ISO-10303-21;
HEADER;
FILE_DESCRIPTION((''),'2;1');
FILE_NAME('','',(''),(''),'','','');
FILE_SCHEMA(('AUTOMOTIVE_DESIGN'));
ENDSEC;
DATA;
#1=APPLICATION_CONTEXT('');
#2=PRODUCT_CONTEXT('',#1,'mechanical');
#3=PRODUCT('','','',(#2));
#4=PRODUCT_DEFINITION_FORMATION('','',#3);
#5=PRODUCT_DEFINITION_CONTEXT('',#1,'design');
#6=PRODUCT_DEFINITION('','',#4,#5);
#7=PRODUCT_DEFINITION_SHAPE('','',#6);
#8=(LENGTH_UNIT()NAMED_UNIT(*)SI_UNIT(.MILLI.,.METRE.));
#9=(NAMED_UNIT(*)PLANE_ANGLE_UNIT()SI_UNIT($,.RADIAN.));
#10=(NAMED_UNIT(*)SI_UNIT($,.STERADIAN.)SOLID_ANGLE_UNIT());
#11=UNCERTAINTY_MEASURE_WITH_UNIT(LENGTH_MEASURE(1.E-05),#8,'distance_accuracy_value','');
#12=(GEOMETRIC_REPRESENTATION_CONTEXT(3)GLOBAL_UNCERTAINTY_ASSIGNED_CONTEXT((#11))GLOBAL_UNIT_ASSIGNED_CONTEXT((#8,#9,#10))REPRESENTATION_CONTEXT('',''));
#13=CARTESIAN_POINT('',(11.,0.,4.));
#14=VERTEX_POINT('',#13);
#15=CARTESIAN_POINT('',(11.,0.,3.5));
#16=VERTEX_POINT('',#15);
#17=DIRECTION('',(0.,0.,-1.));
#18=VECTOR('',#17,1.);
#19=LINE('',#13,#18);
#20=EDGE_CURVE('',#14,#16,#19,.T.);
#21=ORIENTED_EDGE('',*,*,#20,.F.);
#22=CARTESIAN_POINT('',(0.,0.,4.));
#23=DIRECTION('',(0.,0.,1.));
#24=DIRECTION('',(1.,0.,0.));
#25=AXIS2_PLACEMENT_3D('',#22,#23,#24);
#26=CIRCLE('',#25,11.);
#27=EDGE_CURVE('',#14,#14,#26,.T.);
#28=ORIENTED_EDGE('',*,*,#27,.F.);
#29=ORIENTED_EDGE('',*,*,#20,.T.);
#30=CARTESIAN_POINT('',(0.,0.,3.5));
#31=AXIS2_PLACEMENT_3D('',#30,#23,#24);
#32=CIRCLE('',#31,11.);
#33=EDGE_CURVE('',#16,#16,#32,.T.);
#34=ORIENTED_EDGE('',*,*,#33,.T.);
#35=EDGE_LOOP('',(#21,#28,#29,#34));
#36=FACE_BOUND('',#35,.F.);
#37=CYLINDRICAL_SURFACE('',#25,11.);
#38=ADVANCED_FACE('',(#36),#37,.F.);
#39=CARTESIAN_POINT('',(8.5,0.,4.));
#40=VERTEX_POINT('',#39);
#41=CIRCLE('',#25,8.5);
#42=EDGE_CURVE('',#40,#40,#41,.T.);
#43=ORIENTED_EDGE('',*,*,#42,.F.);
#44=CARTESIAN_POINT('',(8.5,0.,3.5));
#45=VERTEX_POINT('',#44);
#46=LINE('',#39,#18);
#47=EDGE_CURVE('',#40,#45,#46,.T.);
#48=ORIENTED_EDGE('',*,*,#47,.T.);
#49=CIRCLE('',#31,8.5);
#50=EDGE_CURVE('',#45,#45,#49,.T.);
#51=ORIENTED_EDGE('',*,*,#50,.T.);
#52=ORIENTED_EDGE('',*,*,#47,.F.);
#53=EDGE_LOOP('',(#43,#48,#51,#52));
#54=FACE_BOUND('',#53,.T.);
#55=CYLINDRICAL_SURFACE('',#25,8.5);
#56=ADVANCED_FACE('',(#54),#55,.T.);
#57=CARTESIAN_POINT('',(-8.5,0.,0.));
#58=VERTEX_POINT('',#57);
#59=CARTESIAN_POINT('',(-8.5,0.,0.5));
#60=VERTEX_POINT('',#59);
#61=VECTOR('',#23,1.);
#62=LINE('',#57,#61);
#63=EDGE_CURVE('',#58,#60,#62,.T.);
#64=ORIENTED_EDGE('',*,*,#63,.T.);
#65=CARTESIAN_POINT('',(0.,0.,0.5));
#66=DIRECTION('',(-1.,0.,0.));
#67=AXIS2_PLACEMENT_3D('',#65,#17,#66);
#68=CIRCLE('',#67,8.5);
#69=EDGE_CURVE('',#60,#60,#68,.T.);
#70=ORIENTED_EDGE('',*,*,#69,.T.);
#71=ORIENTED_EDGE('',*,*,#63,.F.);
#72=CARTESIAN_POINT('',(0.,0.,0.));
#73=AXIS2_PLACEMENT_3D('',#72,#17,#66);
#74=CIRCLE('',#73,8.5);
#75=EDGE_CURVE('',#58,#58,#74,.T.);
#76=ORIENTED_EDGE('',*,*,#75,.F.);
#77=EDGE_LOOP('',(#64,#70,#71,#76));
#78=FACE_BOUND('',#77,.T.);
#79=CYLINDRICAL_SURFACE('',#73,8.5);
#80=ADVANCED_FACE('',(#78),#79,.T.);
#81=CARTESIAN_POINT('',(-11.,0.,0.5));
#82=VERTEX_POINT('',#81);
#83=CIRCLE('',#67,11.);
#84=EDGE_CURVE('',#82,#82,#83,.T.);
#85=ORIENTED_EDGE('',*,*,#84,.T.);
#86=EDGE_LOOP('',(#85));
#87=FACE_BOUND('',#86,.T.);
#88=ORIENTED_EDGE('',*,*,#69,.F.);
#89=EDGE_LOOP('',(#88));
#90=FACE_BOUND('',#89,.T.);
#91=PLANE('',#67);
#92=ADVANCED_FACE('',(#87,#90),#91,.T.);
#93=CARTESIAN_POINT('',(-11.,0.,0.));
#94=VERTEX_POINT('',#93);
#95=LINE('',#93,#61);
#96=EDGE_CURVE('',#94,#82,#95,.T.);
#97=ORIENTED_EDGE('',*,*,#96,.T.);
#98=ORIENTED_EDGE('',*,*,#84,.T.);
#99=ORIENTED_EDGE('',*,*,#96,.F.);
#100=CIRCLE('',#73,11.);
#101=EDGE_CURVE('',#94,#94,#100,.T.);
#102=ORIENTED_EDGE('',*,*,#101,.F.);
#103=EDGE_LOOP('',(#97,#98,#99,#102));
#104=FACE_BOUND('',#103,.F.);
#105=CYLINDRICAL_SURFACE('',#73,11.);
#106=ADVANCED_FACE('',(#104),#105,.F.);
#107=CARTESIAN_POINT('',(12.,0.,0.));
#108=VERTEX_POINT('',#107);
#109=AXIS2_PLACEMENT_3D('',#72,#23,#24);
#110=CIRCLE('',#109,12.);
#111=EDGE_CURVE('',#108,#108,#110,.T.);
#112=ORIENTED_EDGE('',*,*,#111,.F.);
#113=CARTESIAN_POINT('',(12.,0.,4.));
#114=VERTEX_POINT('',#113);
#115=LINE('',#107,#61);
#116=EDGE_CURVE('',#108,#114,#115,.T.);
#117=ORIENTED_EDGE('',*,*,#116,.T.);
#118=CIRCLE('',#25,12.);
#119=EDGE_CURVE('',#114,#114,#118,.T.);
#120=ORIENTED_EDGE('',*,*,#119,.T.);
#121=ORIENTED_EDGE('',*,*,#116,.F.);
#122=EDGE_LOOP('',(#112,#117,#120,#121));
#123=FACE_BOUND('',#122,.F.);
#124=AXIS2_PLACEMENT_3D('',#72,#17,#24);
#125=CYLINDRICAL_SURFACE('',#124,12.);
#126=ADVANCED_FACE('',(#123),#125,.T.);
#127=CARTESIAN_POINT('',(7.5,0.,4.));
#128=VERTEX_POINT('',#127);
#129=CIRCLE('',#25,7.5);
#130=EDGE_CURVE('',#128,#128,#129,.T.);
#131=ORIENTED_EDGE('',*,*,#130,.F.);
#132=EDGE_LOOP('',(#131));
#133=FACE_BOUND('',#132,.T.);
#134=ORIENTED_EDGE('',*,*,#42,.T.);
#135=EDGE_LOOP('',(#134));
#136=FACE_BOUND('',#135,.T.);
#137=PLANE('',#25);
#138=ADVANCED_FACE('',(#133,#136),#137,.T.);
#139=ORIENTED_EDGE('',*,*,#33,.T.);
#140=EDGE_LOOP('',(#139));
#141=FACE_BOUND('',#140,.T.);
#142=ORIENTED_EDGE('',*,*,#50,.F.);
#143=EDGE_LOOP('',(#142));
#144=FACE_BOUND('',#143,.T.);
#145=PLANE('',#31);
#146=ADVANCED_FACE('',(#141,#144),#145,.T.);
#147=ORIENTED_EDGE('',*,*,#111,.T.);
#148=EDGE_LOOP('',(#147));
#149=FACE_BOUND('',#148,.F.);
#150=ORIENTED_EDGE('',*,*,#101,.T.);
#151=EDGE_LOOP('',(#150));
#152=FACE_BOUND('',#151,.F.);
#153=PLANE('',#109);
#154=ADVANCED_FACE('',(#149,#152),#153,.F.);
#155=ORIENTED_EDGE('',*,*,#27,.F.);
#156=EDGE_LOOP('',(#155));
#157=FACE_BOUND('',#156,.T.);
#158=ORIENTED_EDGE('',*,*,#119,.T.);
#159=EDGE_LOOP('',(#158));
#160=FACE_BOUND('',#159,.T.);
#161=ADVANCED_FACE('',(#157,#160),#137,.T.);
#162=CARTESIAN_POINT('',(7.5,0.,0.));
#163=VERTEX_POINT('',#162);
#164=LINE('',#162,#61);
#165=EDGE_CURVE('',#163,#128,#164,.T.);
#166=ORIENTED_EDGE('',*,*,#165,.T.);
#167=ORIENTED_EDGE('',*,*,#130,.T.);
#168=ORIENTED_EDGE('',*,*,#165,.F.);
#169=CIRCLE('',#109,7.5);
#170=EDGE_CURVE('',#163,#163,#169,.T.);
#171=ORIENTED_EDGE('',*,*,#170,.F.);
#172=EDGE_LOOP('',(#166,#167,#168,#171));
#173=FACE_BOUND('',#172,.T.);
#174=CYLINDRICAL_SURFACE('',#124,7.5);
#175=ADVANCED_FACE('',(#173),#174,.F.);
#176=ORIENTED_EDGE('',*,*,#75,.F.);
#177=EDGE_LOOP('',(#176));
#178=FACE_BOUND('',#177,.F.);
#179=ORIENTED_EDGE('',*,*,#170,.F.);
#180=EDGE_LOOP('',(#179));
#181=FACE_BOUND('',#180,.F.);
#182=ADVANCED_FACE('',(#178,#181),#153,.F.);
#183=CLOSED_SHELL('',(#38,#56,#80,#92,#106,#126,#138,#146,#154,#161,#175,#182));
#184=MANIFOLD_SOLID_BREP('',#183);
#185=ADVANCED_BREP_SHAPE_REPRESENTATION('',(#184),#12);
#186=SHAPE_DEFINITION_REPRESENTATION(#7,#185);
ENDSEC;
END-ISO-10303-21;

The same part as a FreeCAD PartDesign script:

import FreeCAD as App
import Part
import Sketcher
from FreeCAD import Vector

doc = App.newDocument("Part")
body = doc.addObject("PartDesign::Body", "Body")

# Sketch on XY plane
sketch1 = body.newObject("Sketcher::SketchObject", "Sketch")
sketch1.AttachmentSupport = (doc.getObject("XY_Plane"), [""])
sketch1.MapMode = "FlatFace"
sketch1.addGeometry([
    Part.Circle(Vector(0, 0, 0), Vector(0, 0, 1), 12),
    Part.Circle(Vector(0, 0, 0), Vector(0, 0, 1), 8),
], False)
sketch1.addConstraint([
    Sketcher.Constraint("Coincident", 0, 3, -1, 1),
    Sketcher.Constraint("Coincident", 1, 3, -1, 1),
    Sketcher.Constraint("Diameter", 0, 24.0),
    Sketcher.Constraint("Diameter", 1, 15.0),
])
pad1 = body.newObject("PartDesign::Pad", "Pad")
pad1.Profile = sketch1
pad1.Length = 4

# Sketch on XY plane
sketch2 = body.newObject("Sketcher::SketchObject", "Sketch001")
sketch2.AttachmentSupport = (doc.getObject("XY_Plane"), [""])
sketch2.MapMode = "FlatFace"
sketch2.AttachmentOffset = App.Placement(Vector(0, 0, 4), App.Rotation())
sketch2.addGeometry([
    Part.Circle(Vector(0, 0, 0), Vector(0, 0, 1), 11),
    Part.Circle(Vector(0, 0, 0), Vector(0, 0, 1), 8),
], False)
sketch2.addConstraint([
    Sketcher.Constraint("Coincident", 0, 3, -1, 1),
    Sketcher.Constraint("Coincident", 1, 3, -1, 1),
    Sketcher.Constraint("Diameter", 0, 22.0),
    Sketcher.Constraint("Diameter", 1, 17.0),
])
pocket1 = body.newObject("PartDesign::Pocket", "Pocket")
pocket1.Profile = sketch2
pocket1.Length = 0.5

# Sketch on XY plane
sketch3 = body.newObject("Sketcher::SketchObject", "Sketch002")
sketch3.AttachmentSupport = (doc.getObject("XY_Plane"), [""])
sketch3.MapMode = "FlatFace"
sketch3.addGeometry([
    Part.Circle(Vector(0, 0, 0), Vector(0, 0, 1), 11),
    Part.Circle(Vector(0, 0, 0), Vector(0, 0, 1), 8),
], False)
sketch3.addConstraint([
    Sketcher.Constraint("Coincident", 0, 3, -1, 1),
    Sketcher.Constraint("Coincident", 1, 3, -1, 1),
    Sketcher.Constraint("Diameter", 0, 22.0),
    Sketcher.Constraint("Diameter", 1, 17.0),
])
pocket2 = body.newObject("PartDesign::Pocket", "Pocket001")
pocket2.Profile = sketch3
pocket2.Length = 0.5
pocket2.Reversed = True

doc.recompute()
